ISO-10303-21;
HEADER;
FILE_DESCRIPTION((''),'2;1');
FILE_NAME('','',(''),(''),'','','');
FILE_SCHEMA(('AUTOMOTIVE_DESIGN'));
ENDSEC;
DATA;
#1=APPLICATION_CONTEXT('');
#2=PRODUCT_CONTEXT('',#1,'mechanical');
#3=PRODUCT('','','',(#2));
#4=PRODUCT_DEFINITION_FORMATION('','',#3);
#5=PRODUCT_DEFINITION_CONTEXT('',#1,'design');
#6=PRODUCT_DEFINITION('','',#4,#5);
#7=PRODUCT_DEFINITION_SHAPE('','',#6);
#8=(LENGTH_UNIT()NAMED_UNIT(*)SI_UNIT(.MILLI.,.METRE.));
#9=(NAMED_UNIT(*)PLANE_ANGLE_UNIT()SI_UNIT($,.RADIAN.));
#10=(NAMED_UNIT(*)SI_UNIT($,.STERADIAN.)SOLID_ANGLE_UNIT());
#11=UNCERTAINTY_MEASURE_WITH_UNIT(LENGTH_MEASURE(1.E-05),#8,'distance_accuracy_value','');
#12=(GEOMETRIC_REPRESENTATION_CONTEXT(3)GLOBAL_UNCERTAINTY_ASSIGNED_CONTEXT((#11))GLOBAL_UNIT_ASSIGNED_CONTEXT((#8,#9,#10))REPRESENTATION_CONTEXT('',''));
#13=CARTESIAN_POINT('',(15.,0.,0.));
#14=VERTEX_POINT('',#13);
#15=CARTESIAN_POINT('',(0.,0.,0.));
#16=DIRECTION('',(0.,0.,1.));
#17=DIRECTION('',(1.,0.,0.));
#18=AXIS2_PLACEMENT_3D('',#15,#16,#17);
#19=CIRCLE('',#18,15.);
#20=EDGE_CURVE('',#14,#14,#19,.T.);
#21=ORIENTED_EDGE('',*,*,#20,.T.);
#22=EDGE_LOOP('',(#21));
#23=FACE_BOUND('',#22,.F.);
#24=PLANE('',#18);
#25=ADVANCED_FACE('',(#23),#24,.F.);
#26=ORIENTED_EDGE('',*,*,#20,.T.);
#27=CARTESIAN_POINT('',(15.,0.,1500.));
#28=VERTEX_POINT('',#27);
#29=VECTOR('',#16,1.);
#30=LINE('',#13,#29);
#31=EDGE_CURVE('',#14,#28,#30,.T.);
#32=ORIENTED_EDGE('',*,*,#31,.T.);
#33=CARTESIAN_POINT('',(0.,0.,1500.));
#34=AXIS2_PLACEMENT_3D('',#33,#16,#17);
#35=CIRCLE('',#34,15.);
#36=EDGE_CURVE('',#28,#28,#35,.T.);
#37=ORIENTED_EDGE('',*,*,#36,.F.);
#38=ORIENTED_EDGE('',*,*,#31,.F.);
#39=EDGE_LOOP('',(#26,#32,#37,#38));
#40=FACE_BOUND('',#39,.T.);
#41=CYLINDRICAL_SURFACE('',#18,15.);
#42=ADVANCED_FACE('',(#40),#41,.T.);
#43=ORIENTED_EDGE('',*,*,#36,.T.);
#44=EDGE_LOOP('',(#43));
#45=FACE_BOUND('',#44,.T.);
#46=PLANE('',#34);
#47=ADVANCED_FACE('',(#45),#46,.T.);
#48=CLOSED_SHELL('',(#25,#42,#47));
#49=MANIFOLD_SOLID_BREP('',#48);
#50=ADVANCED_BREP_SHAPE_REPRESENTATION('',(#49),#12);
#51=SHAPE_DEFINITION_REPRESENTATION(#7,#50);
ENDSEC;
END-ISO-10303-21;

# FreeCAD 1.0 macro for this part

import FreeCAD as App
import Part
import Sketcher

V = App.Vector

doc = App.newDocument("Part")
body = doc.addObject("PartDesign::Body", "Body")

sketch1 = body.newObject("Sketcher::SketchObject", "Sketch")
sketch1.AttachmentSupport = (doc.getObject("XY_Plane"), [""])
sketch1.MapMode = "FlatFace"
sketch1.addGeometry(Part.Circle(V(0, 0, 0), V(0, 0, 1), 15), False)
sketch1.addConstraint(Sketcher.Constraint("Coincident", 0, 3, -1, 1))
sketch1.addConstraint(Sketcher.Constraint("Diameter", 0, 30.0))

sketch2 = body.newObject("Sketcher::SketchObject", "Sketch001")
sketch2.AttachmentSupport = (doc.getObject("XZ_Plane"), [""])
sketch2.MapMode = "FlatFace"
sketch2.addGeometry(Part.LineSegment(V(0, 0, 0), V(0, 1500, 0)), False)
sketch2.addConstraint(Sketcher.Constraint("Vertical", 0))
sketch2.addConstraint(Sketcher.Constraint("Coincident", 0, 1, -1, 1))
sketch2.addConstraint(Sketcher.Constraint("DistanceY", 0, 1, 0, 2, 1500.0))
doc.recompute()

additivepipe = body.newObject("PartDesign::AdditivePipe", "AdditivePipe")
additivepipe.Profile = sketch1
additivepipe.Spine = (sketch2, ["Edge1"])

doc.recompute()
